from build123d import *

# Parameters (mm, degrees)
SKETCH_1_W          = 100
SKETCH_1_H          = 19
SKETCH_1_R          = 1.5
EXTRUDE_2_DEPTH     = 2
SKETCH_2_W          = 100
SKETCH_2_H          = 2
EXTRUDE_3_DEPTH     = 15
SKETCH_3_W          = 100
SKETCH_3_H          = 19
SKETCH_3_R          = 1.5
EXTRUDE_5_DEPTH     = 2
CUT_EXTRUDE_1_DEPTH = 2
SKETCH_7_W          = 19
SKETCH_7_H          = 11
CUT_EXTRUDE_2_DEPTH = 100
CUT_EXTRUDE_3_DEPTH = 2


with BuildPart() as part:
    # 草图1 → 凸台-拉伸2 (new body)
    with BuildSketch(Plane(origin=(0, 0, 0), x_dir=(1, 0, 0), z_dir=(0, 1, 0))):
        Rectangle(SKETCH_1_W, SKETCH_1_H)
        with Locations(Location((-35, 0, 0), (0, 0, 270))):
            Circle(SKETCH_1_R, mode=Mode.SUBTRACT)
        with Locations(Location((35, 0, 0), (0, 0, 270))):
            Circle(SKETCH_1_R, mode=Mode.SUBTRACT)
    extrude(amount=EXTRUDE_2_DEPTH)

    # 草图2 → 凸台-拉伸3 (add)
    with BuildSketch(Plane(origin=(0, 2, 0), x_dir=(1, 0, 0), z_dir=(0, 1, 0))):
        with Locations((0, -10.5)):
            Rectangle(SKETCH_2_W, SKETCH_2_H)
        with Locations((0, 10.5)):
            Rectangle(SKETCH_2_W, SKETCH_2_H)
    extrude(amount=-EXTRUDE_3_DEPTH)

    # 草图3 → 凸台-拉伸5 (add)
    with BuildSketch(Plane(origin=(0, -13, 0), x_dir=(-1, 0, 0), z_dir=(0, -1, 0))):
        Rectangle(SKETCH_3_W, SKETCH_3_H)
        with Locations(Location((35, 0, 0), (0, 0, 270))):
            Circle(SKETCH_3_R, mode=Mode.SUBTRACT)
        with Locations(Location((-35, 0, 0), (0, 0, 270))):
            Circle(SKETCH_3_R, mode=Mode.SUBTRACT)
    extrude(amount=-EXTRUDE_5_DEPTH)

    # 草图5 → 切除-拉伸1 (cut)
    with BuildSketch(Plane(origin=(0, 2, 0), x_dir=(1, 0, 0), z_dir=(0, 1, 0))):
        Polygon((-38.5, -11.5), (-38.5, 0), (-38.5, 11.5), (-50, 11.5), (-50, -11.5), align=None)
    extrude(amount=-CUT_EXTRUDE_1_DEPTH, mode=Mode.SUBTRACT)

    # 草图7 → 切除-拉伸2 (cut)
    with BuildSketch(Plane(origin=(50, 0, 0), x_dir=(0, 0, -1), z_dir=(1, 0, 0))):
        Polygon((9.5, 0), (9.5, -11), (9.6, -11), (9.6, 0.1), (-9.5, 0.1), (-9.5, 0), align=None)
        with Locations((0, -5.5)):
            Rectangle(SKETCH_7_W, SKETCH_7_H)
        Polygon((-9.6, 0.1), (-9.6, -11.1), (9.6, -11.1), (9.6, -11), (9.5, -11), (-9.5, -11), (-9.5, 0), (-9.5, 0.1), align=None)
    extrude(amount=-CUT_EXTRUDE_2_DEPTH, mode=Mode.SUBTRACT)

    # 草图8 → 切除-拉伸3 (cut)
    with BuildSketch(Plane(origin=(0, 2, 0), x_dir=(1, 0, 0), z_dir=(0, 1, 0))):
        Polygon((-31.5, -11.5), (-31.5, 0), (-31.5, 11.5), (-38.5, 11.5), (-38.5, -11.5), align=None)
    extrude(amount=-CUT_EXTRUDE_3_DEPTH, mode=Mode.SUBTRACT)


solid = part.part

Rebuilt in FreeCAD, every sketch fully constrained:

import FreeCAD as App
import Part
import Sketcher

V = App.Vector
Q = App.Units.Quantity


def add_polygon(sketch, points):
    """Adds a closed chain of lines whose ends are joined by coincident constraints."""
    first, n = sketch.GeometryCount, len(points)
    for a, b in zip(points, points[1:] + points[:1]):
        sketch.addGeometry(Part.LineSegment(App.Vector(*a, 0), App.Vector(*b, 0)), False)
    for i in range(n):
        sketch.addConstraint(Sketcher.Constraint("Coincident", first + i, 2, first + (i + 1) % n, 1))

doc = App.newDocument("Part")
body = doc.addObject("PartDesign::Body", "Body")

# Sketch on XZ plane
sketch1 = body.newObject("Sketcher::SketchObject", "Sketch")
sketch1.AttachmentSupport = (doc.getObject("XZ_Plane"), [""])
sketch1.MapMode = "FlatFace"
add_polygon(sketch1, [(-50, -9.5), (-50, 9.5), (50, 9.5), (50, -9.5)])  # lines 0-3
sketch1.addGeometry(Part.Circle(V(-35, 0, 0), V(0, 0, 1), 1.5), False)  # 4
sketch1.addGeometry(Part.Circle(V(35, 0, 0), V(0, 0, 1), 1.5), False)  # 5
sketch1.addConstraint([
    Sketcher.Constraint("Vertical", 0),
    Sketcher.Constraint("Horizontal", 1),
    Sketcher.Constraint("Vertical", 2),
    Sketcher.Constraint("Horizontal", 3),
    Sketcher.Constraint("Equal", 4, 5),
    Sketcher.Constraint("Symmetric", 4, 3, 5, 3, -1, 1),
    Sketcher.Constraint("Symmetric", 0, 2, 2, 2, -1, 1),
    Sketcher.Constraint("PointOnObject", 4, 3, -1),
    Sketcher.Constraint("Diameter", 4, Q("3 mm")),
    Sketcher.Constraint("DistanceX", 1, 1, 1, 2, Q("100 mm")),
    Sketcher.Constraint("DistanceY", 0, 1, 0, 2, Q("19 mm")),
    Sketcher.Constraint("DistanceX", 4, 3, -1, 1, Q("35 mm")),
])
pad1 = body.newObject("PartDesign::Pad", "Pad")
pad1.Profile = sketch1
pad1.Length = 2
pad1.Reversed = True

# Sketch on XZ plane
sketch2 = body.newObject("Sketcher::SketchObject", "Sketch001")
sketch2.AttachmentSupport = (doc.getObject("XZ_Plane"), [""])
sketch2.MapMode = "FlatFace"
sketch2.AttachmentOffset = App.Placement(V(0, 0, -2), App.Rotation())
add_polygon(sketch2, [(-50, 9.5), (-50, 11.5), (50, 11.5), (50, 9.5)])  # lines 0-3
add_polygon(sketch2, [(-50, -11.5), (-50, -9.5), (50, -9.5), (50, -11.5)])  # lines 4-7
sketch2.addConstraint([
    Sketcher.Constraint("Vertical", 0),
    Sketcher.Constraint("Horizontal", 1),
    Sketcher.Constraint("Vertical", 2),
    Sketcher.Constraint("Horizontal", 3),
    Sketcher.Constraint("Vertical", 4),
    Sketcher.Constraint("Horizontal", 5),
    Sketcher.Constraint("Vertical", 6),
    Sketcher.Constraint("Horizontal", 7),
    Sketcher.Constraint("Symmetric", 2, 2, 4, 2, -1, 1),
    Sketcher.Constraint("Symmetric", 0, 2, 6, 2, -1, 1),
    Sketcher.Constraint("Vertical", 3, 2, 4, 2),
    Sketcher.Constraint("DistanceX", 1, 1, 1, 2, Q("100 mm")),
    Sketcher.Constraint("DistanceY", 0, 1, 0, 2, Q("2 mm")),
    Sketcher.Constraint("DistanceY", 4, 2, 3, 2, Q("19 mm")),
])
pad2 = body.newObject("PartDesign::Pad", "Pad001")
pad2.Profile = sketch2
pad2.Length = 15

# Sketch on XZ plane
sketch3 = body.newObject("Sketcher::SketchObject", "Sketch002")
sketch3.AttachmentSupport = (doc.getObject("XZ_Plane"), [""])
sketch3.MapMode = "FlatFace"
sketch3.AttachmentOffset = App.Placement(V(0, 0, 13), App.Rotation())
add_polygon(sketch3, [(50, -9.5), (50, 9.5), (-50, 9.5), (-50, -9.5)])  # lines 0-3
sketch3.addGeometry(Part.Circle(V(35, 0, 0), V(0, 0, 1), 1.5), False)  # 4
sketch3.addGeometry(Part.Circle(V(-35, 0, 0), V(0, 0, 1), 1.5), False)  # 5
sketch3.addConstraint([
    Sketcher.Constraint("Vertical", 0),
    Sketcher.Constraint("Horizontal", 1),
    Sketcher.Constraint("Vertical", 2),
    Sketcher.Constraint("Horizontal", 3),
    Sketcher.Constraint("Equal", 4, 5),
    Sketcher.Constraint("Symmetric", 4, 3, 5, 3, -1, 1),
    Sketcher.Constraint("Symmetric", 0, 2, 2, 2, -1, 1),
    Sketcher.Constraint("PointOnObject", 4, 3, -1),
    Sketcher.Constraint("Diameter", 4, Q("3 mm")),
    Sketcher.Constraint("DistanceX", 1, 2, 1, 1, Q("100 mm")),
    Sketcher.Constraint("DistanceY", 0, 1, 0, 2, Q("19 mm")),
    Sketcher.Constraint("DistanceX", -1, 1, 4, 3, Q("35 mm")),
])
pad3 = body.newObject("PartDesign::Pad", "Pad002")
pad3.Profile = sketch3
pad3.Length = 2
pad3.Reversed = True

# Sketch on XZ plane
sketch4 = body.newObject("Sketcher::SketchObject", "Sketch003")
sketch4.AttachmentSupport = (doc.getObject("XZ_Plane"), [""])
sketch4.MapMode = "FlatFace"
sketch4.AttachmentOffset = App.Placement(V(0, 0, -2), App.Rotation())
add_polygon(sketch4, [(-38.5, 11.5), (-38.5, -11.5), (-50, -11.5), (-50, 11.5)])  # lines 0-3
sketch4.addConstraint([
    Sketcher.Constraint("Vertical", 0),
    Sketcher.Constraint("Horizontal", 1),
    Sketcher.Constraint("Vertical", 2),
    Sketcher.Constraint("Horizontal", 3),
    Sketcher.Constraint("DistanceY", 0, 2, 0, 1, Q("23 mm")),
    Sketcher.Constraint("DistanceX", 1, 2, 1, 1, Q("11.5 mm")),
    Sketcher.Constraint("DistanceX", 1, 2, -1, 1, Q("50 mm")),
    Sketcher.Constraint("DistanceY", 0, 2, -1, 1, Q("11.5 mm")),
])
pocket1 = body.newObject("PartDesign::Pocket", "Pocket")
pocket1.Profile = sketch4
pocket1.Length = 2
pocket1.Reversed = True

# Sketch on YZ plane
sketch5 = body.newObject("Sketcher::SketchObject", "Sketch004")
sketch5.AttachmentSupport = (doc.getObject("YZ_Plane"), [""])
sketch5.MapMode = "FlatFace"
sketch5.AttachmentOffset = App.Placement(V(0, 0, 50), App.Rotation())
add_polygon(sketch5, [(0.1, -9.6), (0.1, 9.6), (-11.1, 9.6), (-11.1, -9.6)])  # lines 0-3
sketch5.addConstraint([
    Sketcher.Constraint("Vertical", 0),
    Sketcher.Constraint("Horizontal", 1),
    Sketcher.Constraint("Vertical", 2),
    Sketcher.Constraint("Horizontal", 3),
    Sketcher.Constraint("DistanceX", 1, 2, 1, 1, Q("11.2 mm")),
    Sketcher.Constraint("DistanceY", 0, 1, 0, 2, Q("19.2 mm")),
    Sketcher.Constraint("DistanceX", -1, 1, 0, 2, Q("0.1 mm")),
    Sketcher.Constraint("DistanceY", -1, 1, 0, 2, Q("9.6 mm")),
])
pocket2 = body.newObject("PartDesign::Pocket", "Pocket001")
pocket2.Profile = sketch5
pocket2.Length = 100

# Sketch on XZ plane
sketch6 = body.newObject("Sketcher::SketchObject", "Sketch005")
sketch6.AttachmentSupport = (doc.getObject("XZ_Plane"), [""])
sketch6.MapMode = "FlatFace"
sketch6.AttachmentOffset = App.Placement(V(0, 0, -2), App.Rotation())
add_polygon(sketch6, [(-31.5, 11.5), (-31.5, -11.5), (-38.5, -11.5), (-38.5, 11.5)])  # lines 0-3
sketch6.addConstraint([
    Sketcher.Constraint("Vertical", 0),
    Sketcher.Constraint("Horizontal", 1),
    Sketcher.Constraint("Vertical", 2),
    Sketcher.Constraint("Horizontal", 3),
    Sketcher.Constraint("DistanceX", 1, 2, 1, 1, Q("7 mm")),
    Sketcher.Constraint("DistanceY", 0, 2, 0, 1, Q("23 mm")),
    Sketcher.Constraint("DistanceX", 0, 2, -1, 1, Q("31.5 mm")),
    Sketcher.Constraint("DistanceY", 0, 2, -1, 1, Q("11.5 mm")),
])
pocket3 = body.newObject("PartDesign::Pocket", "Pocket002")
pocket3.Profile = sketch6
pocket3.Length = 2
pocket3.Reversed = True

doc.recompute()
